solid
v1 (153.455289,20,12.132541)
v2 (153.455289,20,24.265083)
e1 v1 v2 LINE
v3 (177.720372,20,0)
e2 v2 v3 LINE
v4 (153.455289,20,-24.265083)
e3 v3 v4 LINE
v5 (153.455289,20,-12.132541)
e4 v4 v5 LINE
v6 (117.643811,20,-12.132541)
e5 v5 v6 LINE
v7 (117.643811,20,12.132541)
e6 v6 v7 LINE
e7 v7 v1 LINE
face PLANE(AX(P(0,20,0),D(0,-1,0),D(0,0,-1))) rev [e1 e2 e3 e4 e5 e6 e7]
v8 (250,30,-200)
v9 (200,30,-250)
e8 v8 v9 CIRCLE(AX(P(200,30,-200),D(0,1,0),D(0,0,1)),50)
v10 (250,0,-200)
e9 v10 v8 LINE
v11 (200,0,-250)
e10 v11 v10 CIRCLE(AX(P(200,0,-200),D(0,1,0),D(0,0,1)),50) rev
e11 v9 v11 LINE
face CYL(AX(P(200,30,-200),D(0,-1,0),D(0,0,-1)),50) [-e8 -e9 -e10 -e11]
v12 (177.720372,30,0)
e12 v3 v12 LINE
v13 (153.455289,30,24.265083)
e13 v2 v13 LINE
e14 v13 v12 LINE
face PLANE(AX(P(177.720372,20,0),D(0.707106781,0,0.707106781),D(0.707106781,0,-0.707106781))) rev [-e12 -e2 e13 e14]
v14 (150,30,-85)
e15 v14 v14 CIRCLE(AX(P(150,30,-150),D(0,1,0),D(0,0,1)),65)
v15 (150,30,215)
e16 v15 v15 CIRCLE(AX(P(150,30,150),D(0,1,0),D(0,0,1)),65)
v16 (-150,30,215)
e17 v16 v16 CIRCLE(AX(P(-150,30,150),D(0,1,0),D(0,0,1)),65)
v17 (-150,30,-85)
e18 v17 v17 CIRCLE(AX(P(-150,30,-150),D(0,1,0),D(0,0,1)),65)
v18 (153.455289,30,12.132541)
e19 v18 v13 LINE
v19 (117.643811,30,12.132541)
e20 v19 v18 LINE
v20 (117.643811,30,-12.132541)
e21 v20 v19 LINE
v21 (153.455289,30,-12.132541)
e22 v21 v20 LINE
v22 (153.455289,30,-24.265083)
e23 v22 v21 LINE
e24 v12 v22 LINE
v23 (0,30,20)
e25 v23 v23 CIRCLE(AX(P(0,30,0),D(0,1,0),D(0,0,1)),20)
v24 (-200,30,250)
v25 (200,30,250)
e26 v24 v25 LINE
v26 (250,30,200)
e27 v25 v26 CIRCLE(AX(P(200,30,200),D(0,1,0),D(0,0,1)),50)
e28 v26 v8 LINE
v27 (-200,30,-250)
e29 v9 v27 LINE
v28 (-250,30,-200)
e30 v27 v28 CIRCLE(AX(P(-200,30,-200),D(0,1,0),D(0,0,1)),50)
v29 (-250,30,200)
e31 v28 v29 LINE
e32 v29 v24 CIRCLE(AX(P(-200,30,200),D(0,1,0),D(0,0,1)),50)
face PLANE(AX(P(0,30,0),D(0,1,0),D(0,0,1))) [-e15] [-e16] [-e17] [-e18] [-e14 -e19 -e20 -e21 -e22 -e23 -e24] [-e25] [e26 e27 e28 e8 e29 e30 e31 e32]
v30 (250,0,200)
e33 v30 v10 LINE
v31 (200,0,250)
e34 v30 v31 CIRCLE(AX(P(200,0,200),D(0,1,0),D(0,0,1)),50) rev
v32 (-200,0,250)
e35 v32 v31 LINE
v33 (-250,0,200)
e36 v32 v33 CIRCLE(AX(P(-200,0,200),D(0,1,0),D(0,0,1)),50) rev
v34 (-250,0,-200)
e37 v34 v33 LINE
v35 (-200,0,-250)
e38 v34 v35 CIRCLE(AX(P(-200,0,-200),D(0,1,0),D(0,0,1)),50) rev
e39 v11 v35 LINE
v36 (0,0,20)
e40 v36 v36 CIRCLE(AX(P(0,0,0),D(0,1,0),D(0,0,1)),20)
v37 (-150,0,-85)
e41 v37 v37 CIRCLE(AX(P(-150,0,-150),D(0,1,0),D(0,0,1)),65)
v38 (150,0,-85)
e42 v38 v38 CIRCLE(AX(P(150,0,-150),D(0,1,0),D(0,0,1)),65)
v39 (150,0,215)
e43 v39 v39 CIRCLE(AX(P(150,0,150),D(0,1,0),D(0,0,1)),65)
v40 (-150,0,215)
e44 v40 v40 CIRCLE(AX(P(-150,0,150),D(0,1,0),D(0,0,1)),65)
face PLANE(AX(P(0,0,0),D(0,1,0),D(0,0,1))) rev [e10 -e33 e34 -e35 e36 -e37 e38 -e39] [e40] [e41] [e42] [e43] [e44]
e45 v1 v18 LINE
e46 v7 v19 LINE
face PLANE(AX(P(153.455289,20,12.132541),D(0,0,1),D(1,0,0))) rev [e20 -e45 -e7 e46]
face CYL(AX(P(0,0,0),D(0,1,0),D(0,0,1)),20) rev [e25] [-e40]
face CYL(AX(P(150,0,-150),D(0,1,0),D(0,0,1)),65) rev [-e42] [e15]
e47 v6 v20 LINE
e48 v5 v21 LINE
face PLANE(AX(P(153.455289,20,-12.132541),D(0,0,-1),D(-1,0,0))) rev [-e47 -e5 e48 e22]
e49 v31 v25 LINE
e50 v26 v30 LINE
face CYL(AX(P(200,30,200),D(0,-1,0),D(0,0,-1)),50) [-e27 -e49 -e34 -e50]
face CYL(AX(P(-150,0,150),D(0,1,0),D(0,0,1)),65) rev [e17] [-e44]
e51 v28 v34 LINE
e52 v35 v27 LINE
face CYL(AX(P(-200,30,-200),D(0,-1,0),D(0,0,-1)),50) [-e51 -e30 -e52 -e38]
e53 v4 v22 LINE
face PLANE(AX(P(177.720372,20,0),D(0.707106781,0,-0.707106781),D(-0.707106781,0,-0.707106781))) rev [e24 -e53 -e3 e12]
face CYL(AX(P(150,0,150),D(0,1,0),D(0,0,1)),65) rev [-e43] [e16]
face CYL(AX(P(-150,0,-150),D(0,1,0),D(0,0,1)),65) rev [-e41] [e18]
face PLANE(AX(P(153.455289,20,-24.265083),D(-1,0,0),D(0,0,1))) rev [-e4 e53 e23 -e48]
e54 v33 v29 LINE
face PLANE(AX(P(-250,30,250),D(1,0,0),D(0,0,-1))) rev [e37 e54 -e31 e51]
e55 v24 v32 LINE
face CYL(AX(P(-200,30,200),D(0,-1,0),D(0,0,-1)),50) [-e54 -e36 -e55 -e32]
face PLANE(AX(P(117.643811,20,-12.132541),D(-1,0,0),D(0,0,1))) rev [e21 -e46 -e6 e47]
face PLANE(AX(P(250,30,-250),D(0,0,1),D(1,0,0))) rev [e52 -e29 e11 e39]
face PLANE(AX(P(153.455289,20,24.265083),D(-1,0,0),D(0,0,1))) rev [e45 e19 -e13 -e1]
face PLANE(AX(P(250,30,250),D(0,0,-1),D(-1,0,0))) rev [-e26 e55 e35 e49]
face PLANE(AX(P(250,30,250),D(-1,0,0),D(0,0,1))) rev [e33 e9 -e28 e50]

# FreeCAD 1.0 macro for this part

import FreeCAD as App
import Part
import Sketcher
from FreeCAD import Vector
Q = App.Units.Quantity


def edges_at(feature, points):
    """Names of the edges that pass closest to the given points."""
    edges = feature.Shape.Edges
    near = lambda p: min(range(len(edges)), key=lambda i: edges[i].distToShape(Part.Vertex(*p))[0])
    return sorted({f"Edge{near(p) + 1}" for p in points})

doc = App.newDocument("Part")
body = doc.addObject("PartDesign::Body", "Body")

# Sketch on XZ plane
sketch1 = body.newObject("Sketcher::SketchObject", "Sketch")
sketch1.AttachmentSupport = (doc.getObject("XZ_Plane"), [""])
sketch1.MapMode = "FlatFace"
sketch1.addGeometry([
    Part.LineSegment(Vector(-250, -250, 0), Vector(-250, 250, 0)),
    Part.LineSegment(Vector(-250, 250, 0), Vector(250, 250, 0)),
    Part.LineSegment(Vector(250, 250, 0), Vector(250, -250, 0)),
    Part.LineSegment(Vector(250, -250, 0), Vector(-250, -250, 0)),
], False)
sketch1.addConstraint([
    Sketcher.Constraint("Coincident", 0, 2, 1, 1),
    Sketcher.Constraint("Coincident", 1, 2, 2, 1),
    Sketcher.Constraint("Coincident", 2, 2, 3, 1),
    Sketcher.Constraint("Coincident", 3, 2, 0, 1),
    Sketcher.Constraint("Vertical", 0),
    Sketcher.Constraint("Horizontal", 1),
    Sketcher.Constraint("Vertical", 2),
    Sketcher.Constraint("Horizontal", 3),
    Sketcher.Constraint("Symmetric", 0, 2, 2, 2, -1, 1),
    Sketcher.Constraint("Equal", 3, 0),
    Sketcher.Constraint("DistanceX", 1, 1, 1, 2, Q("500 mm")),
])
pad1 = body.newObject("PartDesign::Pad", "Pad")
pad1.Profile = sketch1
pad1.Length = 30
pad1.Reversed = True

# Sketch on XZ plane
sketch2 = body.newObject("Sketcher::SketchObject", "Sketch001")
sketch2.AttachmentSupport = (doc.getObject("XZ_Plane"), [""])
sketch2.MapMode = "FlatFace"
sketch2.AttachmentOffset = App.Placement(Vector(0, 0, -30), App.Rotation())
sketch2.addGeometry([
    Part.Circle(Vector(150, 150, 0), Vector(0, 0, 1), 65),
    Part.Circle(Vector(-150, 150, 0), Vector(0, 0, 1), 65),
    Part.Circle(Vector(150, -150, 0), Vector(0, 0, 1), 65),
    Part.Circle(Vector(-150, -150, 0), Vector(0, 0, 1), 65),
], False)
sketch2.addConstraint([
    Sketcher.Constraint("Equal", 0, 1),
    Sketcher.Constraint("Equal", 1, 2),
    Sketcher.Constraint("Equal", 2, 3),
    Sketcher.Constraint("Symmetric", 1, 3, 2, 3, -1, 1),
    Sketcher.Constraint("Symmetric", 0, 3, 3, 3, -1, 1),
    Sketcher.Constraint("Symmetric", 0, 3, 1, 3, -2),
    Sketcher.Constraint("Diameter", 0, Q("130 mm")),
    Sketcher.Constraint("DistanceX", -1, 1, 0, 3, Q("150 mm")),
    Sketcher.Constraint("DistanceY", -1, 1, 0, 3, Q("150 mm")),
])
pocket1 = body.newObject("PartDesign::Pocket", "Pocket")
pocket1.Profile = sketch2
pocket1.Length = 30
pocket1.Reversed = True
doc.recompute()

fillet = body.newObject("PartDesign::Fillet", "Fillet")
fillet.Base = (pocket1, edges_at(pocket1, [
    (-250, 15, -250),
    (250, 15, -250),
    (250, 15, 250),
    (-250, 15, 250),
]))
fillet.Radius = 50

# Sketch on XZ plane
sketch3 = body.newObject("Sketcher::SketchObject", "Sketch002")
sketch3.AttachmentSupport = (doc.getObject("XZ_Plane"), [""])
sketch3.MapMode = "FlatFace"
sketch3.AttachmentOffset = App.Placement(Vector(0, 0, -30), App.Rotation())
sketch3.addGeometry([
    Part.LineSegment(Vector(178, 0, 0), Vector(153, -24, 0)),  # 0
    Part.LineSegment(Vector(153, -24, 0), Vector(153, -12, 0)),  # 1
    Part.LineSegment(Vector(153, -12, 0), Vector(118, -12, 0)),  # 2
    Part.LineSegment(Vector(118, -12, 0), Vector(118, 12, 0)),  # 3
    Part.LineSegment(Vector(118, 12, 0), Vector(153, 12, 0)),  # 4
    Part.LineSegment(Vector(153, 12, 0), Vector(153, 24, 0)),  # 5
    Part.LineSegment(Vector(153, 24, 0), Vector(178, 0, 0)),  # 6
], False)
sketch3.addConstraint([
    Sketcher.Constraint("Coincident", 0, 2, 1, 1),
    Sketcher.Constraint("Coincident", 1, 2, 2, 1),
    Sketcher.Constraint("Coincident", 2, 2, 3, 1),
    Sketcher.Constraint("Coincident", 3, 2, 4, 1),
    Sketcher.Constraint("Coincident", 4, 2, 5, 1),
    Sketcher.Constraint("Coincident", 5, 2, 6, 1),
    Sketcher.Constraint("Coincident", 6, 2, 0, 1),
    Sketcher.Constraint("Vertical", 1),
    Sketcher.Constraint("Horizontal", 2),
    Sketcher.Constraint("Vertical", 3),
    Sketcher.Constraint("Horizontal", 4),
    Sketcher.Constraint("Vertical", 5),
    Sketcher.Constraint("Symmetric", 1, 2, 4, 2, -1),
    Sketcher.Constraint("PointOnObject", 6, 2, -1),
    Sketcher.Constraint("Perpendicular", 0, 6),
    Sketcher.Constraint("Equal", 1, 5),
    Sketcher.Constraint("DistanceY", 1, 1, 1, 2, Q("12.132541 mm")),
    Sketcher.Constraint("Distance", 0, Q("34.316009 mm")),
    Sketcher.Constraint("DistanceX", 2, 2, 2, 1, Q("35.811478 mm")),
    Sketcher.Constraint("DistanceX", -1, 1, 0, 2, Q("153.455289 mm")),
])
pocket2 = body.newObject("PartDesign::Pocket", "Pocket001")
pocket2.Profile = sketch3
pocket2.Length = 10
pocket2.Reversed = True

# Sketch on XZ plane
sketch4 = body.newObject("Sketcher::SketchObject", "Sketch003")
sketch4.AttachmentSupport = (doc.getObject("XZ_Plane"), [""])
sketch4.MapMode = "FlatFace"
sketch4.AttachmentOffset = App.Placement(Vector(0, 0, -30), App.Rotation())
sketch4.addGeometry(Part.Circle(Vector(0, 0, 0), Vector(0, 0, 1), 20), False)
sketch4.addConstraint([
    Sketcher.Constraint("Coincident", 0, 3, -1, 1),
    Sketcher.Constraint("Diameter", 0, Q("40 mm")),
])
pocket3 = body.newObject("PartDesign::Pocket", "Pocket002")
pocket3.Profile = sketch4
pocket3.Type = "ThroughAll"
pocket3.Reversed = True

doc.recompute()
